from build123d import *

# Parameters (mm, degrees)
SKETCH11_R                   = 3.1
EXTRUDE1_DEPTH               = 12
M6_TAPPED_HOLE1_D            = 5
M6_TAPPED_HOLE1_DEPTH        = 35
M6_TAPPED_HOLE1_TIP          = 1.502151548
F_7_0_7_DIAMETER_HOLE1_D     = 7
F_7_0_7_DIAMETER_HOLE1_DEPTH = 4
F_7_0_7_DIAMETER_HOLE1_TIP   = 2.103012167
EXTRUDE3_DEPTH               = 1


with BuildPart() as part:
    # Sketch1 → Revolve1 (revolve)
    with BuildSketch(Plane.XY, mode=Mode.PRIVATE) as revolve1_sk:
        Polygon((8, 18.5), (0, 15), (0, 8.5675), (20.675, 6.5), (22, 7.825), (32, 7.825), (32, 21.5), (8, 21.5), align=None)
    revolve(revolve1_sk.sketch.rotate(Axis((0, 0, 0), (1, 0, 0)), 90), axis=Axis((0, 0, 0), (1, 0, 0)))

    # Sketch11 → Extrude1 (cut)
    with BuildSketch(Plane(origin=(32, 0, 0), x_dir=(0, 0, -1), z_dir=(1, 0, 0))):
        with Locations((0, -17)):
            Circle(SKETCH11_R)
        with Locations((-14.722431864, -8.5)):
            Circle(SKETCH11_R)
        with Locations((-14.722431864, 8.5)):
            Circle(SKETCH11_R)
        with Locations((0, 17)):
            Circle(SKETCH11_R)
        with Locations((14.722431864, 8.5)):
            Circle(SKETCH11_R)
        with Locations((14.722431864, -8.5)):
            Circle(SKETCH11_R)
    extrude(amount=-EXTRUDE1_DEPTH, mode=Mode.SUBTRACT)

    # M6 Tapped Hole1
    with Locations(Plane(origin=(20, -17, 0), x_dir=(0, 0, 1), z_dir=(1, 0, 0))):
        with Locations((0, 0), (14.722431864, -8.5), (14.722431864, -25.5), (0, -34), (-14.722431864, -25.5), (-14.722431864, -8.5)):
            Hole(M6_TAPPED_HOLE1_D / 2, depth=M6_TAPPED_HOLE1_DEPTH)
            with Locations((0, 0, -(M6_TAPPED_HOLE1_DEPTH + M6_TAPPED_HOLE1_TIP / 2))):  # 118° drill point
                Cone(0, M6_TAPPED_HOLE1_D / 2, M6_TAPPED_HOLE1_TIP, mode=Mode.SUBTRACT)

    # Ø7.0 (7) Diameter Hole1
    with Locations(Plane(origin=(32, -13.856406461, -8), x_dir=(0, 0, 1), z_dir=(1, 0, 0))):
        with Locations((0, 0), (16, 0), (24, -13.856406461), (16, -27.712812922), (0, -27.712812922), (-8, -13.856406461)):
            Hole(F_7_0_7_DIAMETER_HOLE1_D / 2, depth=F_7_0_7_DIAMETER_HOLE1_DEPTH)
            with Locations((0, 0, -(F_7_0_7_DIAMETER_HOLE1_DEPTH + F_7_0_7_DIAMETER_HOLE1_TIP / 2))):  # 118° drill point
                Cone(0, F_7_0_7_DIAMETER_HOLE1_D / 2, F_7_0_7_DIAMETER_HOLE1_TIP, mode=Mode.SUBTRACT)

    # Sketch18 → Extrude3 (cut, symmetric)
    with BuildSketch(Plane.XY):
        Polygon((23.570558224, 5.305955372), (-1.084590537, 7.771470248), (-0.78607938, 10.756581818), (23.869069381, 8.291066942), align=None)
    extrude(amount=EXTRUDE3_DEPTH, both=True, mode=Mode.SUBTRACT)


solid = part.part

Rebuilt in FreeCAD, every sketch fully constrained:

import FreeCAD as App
import Part
import Sketcher
Q = App.Units.Quantity


def add_polygon(sketch, points):
    """Adds a closed chain of lines whose ends are joined by coincident constraints."""
    first, n = sketch.GeometryCount, len(points)
    for a, b in zip(points, points[1:] + points[:1]):
        sketch.addGeometry(Part.LineSegment(App.Vector(*a, 0), App.Vector(*b, 0)), False)
    for i in range(n):
        sketch.addConstraint(Sketcher.Constraint("Coincident", first + i, 2, first + (i + 1) % n, 1))

doc = App.newDocument("Part")
body = doc.addObject("PartDesign::Body", "Body")

sketch1 = doc.addObject("Sketcher::SketchObject", "Sketch")
body.addObject(sketch1)
sketch1.AttachmentSupport = (doc.XY_Plane, [""])
sketch1.MapMode = "FlatFace"
add_polygon(sketch1, [(8, 18.5), (0, 15), (0, 8.6), (20.7, 6.5), (22, 7.8), (32, 7.8), (32, 21.5), (8, 21.5)])
sketch1.addConstraint([
    Sketcher.Constraint("Vertical", 1),
    Sketcher.Constraint("Horizontal", 4),
    Sketcher.Constraint("Vertical", 5),
    Sketcher.Constraint("Horizontal", 6),
    Sketcher.Constraint("Vertical", 7),
    Sketcher.Constraint("PointOnObject", 0, 2, -2),
    Sketcher.Constraint("DistanceX", 4, 1, 4, 2, Q("10 mm")),
    Sketcher.Constraint("DistanceX", 6, 2, 6, 1, Q("24 mm")),
    Sketcher.Constraint("DistanceY", 7, 2, 7, 1, Q("3 mm")),
    Sketcher.Constraint("Angle", 3, Q("45 deg")),
    Sketcher.Constraint("DistanceY", -1, 1, 0, 2, Q("15 mm")),
    Sketcher.Constraint("DistanceX", -1, 1, 3, 2, Q("22 mm")),
    Sketcher.Constraint("DistanceY", 2, 2, 5, 2, Q("15 mm")),
    Sketcher.Constraint("DistanceY", -1, 1, 2, 2, Q("6.5 mm")),
    Sketcher.Constraint("DistanceY", 5, 1, 5, 2, Q("13.675 mm")),
    Sketcher.Constraint("DistanceY", 1, 2, 1, 1, Q("6.4325 mm")),
])
revolution = doc.addObject("PartDesign::Revolution", "Revolution")
body.addObject(revolution)
revolution.Profile = sketch1
revolution.ReferenceAxis = (sketch1, ["H_Axis"])
revolution.Angle = 360

sketch2 = doc.addObject("Sketcher::SketchObject", "Sketch001")
body.addObject(sketch2)
sketch2.AttachmentSupport = (doc.YZ_Plane, [""])
sketch2.MapMode = "FlatFace"
sketch2.AttachmentOffset = App.Placement(App.Vector(0, 0, 32), App.Rotation())
sketch2.addGeometry([
    Part.Circle(App.Vector(-17, 0, 0), App.Vector(0, 0, 1), 3.1),
    Part.Circle(App.Vector(-8.5, 14.7, 0), App.Vector(0, 0, 1), 3.1),
    Part.Circle(App.Vector(8.5, 14.7, 0), App.Vector(0, 0, 1), 3.1),
    Part.Circle(App.Vector(17, 0, 0), App.Vector(0, 0, 1), 3.1),
    Part.Circle(App.Vector(8.5, -14.7, 0), App.Vector(0, 0, 1), 3.1),
    Part.Circle(App.Vector(-8.5, -14.7, 0), App.Vector(0, 0, 1), 3.1),
], False)
sketch2.addConstraint([
    Sketcher.Constraint("Equal", 0, 1),
    Sketcher.Constraint("Equal", 1, 2),
    Sketcher.Constraint("Equal", 2, 3),
    Sketcher.Constraint("Equal", 3, 4),
    Sketcher.Constraint("Equal", 4, 5),
    Sketcher.Constraint("Symmetric", 0, 3, 3, 3, -1, 1),
    Sketcher.Constraint("Symmetric", 1, 3, 4, 3, -1, 1),
    Sketcher.Constraint("Symmetric", 2, 3, 5, 3, -1, 1),
    Sketcher.Constraint("Symmetric", 1, 3, 2, 3, -2),
    Sketcher.Constraint("PointOnObject", 0, 3, -1),
    Sketcher.Constraint("Diameter", 0, Q("6.2 mm")),
    Sketcher.Constraint("DistanceX", 0, 3, -1, 1, Q("17 mm")),
    Sketcher.Constraint("DistanceX", 1, 3, 2, 3, Q("17 mm")),
    Sketcher.Constraint("DistanceY", -1, 1, 1, 3, Q("14.722432 mm")),
])
pocket1 = doc.addObject("PartDesign::Pocket", "Pocket")
body.addObject(pocket1)
pocket1.Profile = sketch2
pocket1.Length = 12

sketch3 = doc.addObject("Sketcher::SketchObject", "Sketch002")
body.addObject(sketch3)
sketch3.AttachmentSupport = (doc.YZ_Plane, [""])
sketch3.MapMode = "FlatFace"
sketch3.AttachmentOffset = App.Placement(App.Vector(0, 0, 20), App.Rotation())
sketch3.addGeometry([
    Part.Circle(App.Vector(-17, 0, 0), App.Vector(0, 0, 1), 2.5),
    Part.Circle(App.Vector(-8.5, 14.7, 0), App.Vector(0, 0, 1), 2.5),
    Part.Circle(App.Vector(8.5, 14.7, 0), App.Vector(0, 0, 1), 2.5),
    Part.Circle(App.Vector(17, 0, 0), App.Vector(0, 0, 1), 2.5),
    Part.Circle(App.Vector(8.5, -14.7, 0), App.Vector(0, 0, 1), 2.5),
    Part.Circle(App.Vector(-8.5, -14.7, 0), App.Vector(0, 0, 1), 2.5),
], False)
sketch3.addConstraint([
    Sketcher.Constraint("Equal", 0, 1),
    Sketcher.Constraint("Equal", 1, 2),
    Sketcher.Constraint("Equal", 2, 3),
    Sketcher.Constraint("Equal", 3, 4),
    Sketcher.Constraint("Equal", 4, 5),
    Sketcher.Constraint("Symmetric", 0, 3, 3, 3, -1, 1),
    Sketcher.Constraint("Symmetric", 1, 3, 4, 3, -1, 1),
    Sketcher.Constraint("Symmetric", 2, 3, 5, 3, -1, 1),
    Sketcher.Constraint("Symmetric", 1, 3, 2, 3, -2),
    Sketcher.Constraint("PointOnObject", 0, 3, -1),
    Sketcher.Constraint("Diameter", 0, Q("5 mm")),
    Sketcher.Constraint("DistanceX", 0, 3, -1, 1, Q("17 mm")),
    Sketcher.Constraint("DistanceX", 1, 3, 2, 3, Q("17 mm")),
    Sketcher.Constraint("DistanceY", -1, 1, 1, 3, Q("14.722432 mm")),
])
doc.recompute()
hole = doc.addObject("PartDesign::Hole", "Hole")
body.addObject(hole)
hole.Profile = sketch3
hole.ThreadType = "None"
hole.Diameter = 5
hole.DepthType = "Dimension"
hole.Depth = 35
hole.DrillPoint = "Angled"
hole.DrillPointAngle = 118

sketch4 = doc.addObject("Sketcher::SketchObject", "Sketch003")
body.addObject(sketch4)
sketch4.AttachmentSupport = (doc.YZ_Plane, [""])
sketch4.MapMode = "FlatFace"
sketch4.AttachmentOffset = App.Placement(App.Vector(0, 0, 32), App.Rotation())
sketch4.addGeometry([
    Part.Circle(App.Vector(-13.9, -8, 0), App.Vector(0, 0, 1), 3.5),
    Part.Circle(App.Vector(-13.9, 8, 0), App.Vector(0, 0, 1), 3.5),
    Part.Circle(App.Vector(0, 16, 0), App.Vector(0, 0, 1), 3.5),
    Part.Circle(App.Vector(13.9, 8, 0), App.Vector(0, 0, 1), 3.5),
    Part.Circle(App.Vector(13.9, -8, 0), App.Vector(0, 0, 1), 3.5),
    Part.Circle(App.Vector(0, -16, 0), App.Vector(0, 0, 1), 3.5),
], False)
sketch4.addConstraint([
    Sketcher.Constraint("Equal", 0, 1),
    Sketcher.Constraint("Equal", 1, 2),
    Sketcher.Constraint("Equal", 2, 3),
    Sketcher.Constraint("Equal", 3, 4),
    Sketcher.Constraint("Equal", 4, 5),
    Sketcher.Constraint("Symmetric", 0, 3, 3, 3, -1, 1),
    Sketcher.Constraint("Symmetric", 1, 3, 4, 3, -1, 1),
    Sketcher.Constraint("Symmetric", 2, 3, 5, 3, -1, 1),
    Sketcher.Constraint("Symmetric", 1, 3, 3, 3, -2),
    Sketcher.Constraint("PointOnObject", 2, 3, -2),
    Sketcher.Constraint("Diameter", 0, Q("7 mm")),
    Sketcher.Constraint("DistanceY", 0, 3, -1, 1, Q("8 mm")),
    Sketcher.Constraint("DistanceY", -1, 1, 2, 3, Q("16 mm")),
    Sketcher.Constraint("DistanceX", 0, 3, -1, 1, Q("13.856406 mm")),
])
doc.recompute()
hole2 = doc.addObject("PartDesign::Hole", "Hole001")
body.addObject(hole2)
hole2.Profile = sketch4
hole2.ThreadType = "None"
hole2.Diameter = 7
hole2.DepthType = "Dimension"
hole2.Depth = 4
hole2.DrillPoint = "Angled"
hole2.DrillPointAngle = 118

sketch5 = doc.addObject("Sketcher::SketchObject", "Sketch004")
body.addObject(sketch5)
sketch5.AttachmentSupport = (doc.XY_Plane, [""])
sketch5.MapMode = "FlatFace"
add_polygon(sketch5, [(-1.1, 7.8), (23.6, 5.3), (23.9, 8.3), (-0.8, 10.8)])
sketch5.addConstraint([
    Sketcher.Constraint("Perpendicular", 0, 1),
    Sketcher.Constraint("Perpendicular", 1, 2),
    Sketcher.Constraint("Perpendicular", 2, 3),
    Sketcher.Constraint("Distance", 1, Q("3 mm")),
    Sketcher.Constraint("DistanceX", -1, 1, 0, 2, Q("23.570558 mm")),
    Sketcher.Constraint("DistanceX", -1, 1, 1, 2, Q("23.869069 mm")),
    Sketcher.Constraint("DistanceX", 2, 2, -1, 1, Q("0.786079 mm")),
    Sketcher.Constraint("DistanceY", -1, 1, 2, 2, Q("10.756582 mm")),
])
pocket2 = doc.addObject("PartDesign::Pocket", "Pocket001")
body.addObject(pocket2)
pocket2.Profile = sketch5
pocket2.Length = 2
pocket2.Midplane = True

doc.recompute()
